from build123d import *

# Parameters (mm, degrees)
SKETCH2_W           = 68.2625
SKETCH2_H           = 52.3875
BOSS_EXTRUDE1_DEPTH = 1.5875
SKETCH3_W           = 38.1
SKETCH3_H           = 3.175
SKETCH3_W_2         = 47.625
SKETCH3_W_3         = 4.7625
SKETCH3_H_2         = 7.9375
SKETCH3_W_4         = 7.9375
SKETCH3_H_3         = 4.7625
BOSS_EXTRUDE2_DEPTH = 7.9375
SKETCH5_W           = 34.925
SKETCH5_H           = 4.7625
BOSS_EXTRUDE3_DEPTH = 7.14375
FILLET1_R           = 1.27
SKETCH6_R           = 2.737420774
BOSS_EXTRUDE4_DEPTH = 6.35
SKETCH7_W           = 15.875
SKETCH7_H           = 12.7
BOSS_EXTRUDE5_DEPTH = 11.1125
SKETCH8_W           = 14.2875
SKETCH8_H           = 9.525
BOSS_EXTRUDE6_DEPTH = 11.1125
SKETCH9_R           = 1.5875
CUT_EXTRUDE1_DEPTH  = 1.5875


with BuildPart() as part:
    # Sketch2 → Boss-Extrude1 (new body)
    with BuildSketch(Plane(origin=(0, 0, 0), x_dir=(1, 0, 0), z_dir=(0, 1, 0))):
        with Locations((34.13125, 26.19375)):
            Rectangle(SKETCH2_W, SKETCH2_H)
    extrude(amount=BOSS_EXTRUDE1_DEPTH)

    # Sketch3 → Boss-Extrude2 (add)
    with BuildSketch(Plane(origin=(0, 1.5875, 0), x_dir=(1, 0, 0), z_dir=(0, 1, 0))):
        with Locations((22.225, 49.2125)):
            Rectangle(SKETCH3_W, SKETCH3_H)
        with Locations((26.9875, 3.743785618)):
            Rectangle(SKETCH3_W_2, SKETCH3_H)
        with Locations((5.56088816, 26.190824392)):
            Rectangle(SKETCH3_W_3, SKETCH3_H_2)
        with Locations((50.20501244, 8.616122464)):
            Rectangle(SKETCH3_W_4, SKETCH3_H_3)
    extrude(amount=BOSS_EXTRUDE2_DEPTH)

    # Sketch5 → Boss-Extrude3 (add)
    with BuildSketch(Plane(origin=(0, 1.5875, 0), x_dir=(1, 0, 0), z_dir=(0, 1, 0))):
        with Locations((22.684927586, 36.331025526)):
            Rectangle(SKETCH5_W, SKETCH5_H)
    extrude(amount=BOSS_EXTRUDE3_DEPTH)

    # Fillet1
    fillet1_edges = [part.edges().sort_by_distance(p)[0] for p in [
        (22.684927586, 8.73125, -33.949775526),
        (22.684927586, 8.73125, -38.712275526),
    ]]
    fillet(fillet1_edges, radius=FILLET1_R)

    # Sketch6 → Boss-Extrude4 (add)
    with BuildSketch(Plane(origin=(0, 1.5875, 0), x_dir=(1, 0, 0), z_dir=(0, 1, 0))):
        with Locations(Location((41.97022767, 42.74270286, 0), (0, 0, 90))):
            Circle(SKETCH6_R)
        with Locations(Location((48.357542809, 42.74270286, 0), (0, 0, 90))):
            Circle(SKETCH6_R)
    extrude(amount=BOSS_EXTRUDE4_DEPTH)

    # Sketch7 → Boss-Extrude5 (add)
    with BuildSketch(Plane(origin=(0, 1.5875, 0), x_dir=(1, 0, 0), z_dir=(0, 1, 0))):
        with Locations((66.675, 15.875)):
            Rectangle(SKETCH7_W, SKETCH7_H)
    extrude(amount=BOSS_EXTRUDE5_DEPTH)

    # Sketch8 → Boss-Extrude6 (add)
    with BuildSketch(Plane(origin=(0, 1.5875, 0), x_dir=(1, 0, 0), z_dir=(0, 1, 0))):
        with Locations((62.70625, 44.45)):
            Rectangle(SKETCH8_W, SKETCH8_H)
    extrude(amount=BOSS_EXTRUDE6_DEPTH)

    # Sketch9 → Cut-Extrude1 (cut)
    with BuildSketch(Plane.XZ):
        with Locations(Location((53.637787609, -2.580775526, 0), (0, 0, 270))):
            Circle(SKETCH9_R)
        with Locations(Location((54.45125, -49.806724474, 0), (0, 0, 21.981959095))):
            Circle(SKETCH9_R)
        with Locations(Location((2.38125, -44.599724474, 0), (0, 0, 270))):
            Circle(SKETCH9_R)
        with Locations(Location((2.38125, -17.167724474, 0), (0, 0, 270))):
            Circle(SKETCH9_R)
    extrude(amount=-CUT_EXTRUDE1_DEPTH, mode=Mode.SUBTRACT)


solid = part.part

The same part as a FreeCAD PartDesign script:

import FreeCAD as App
import Part
import Sketcher

V = App.Vector
Q = App.Units.Quantity


def edges_at(feature, points):
    """Names of the edges that pass closest to the given points."""
    edges = feature.Shape.Edges
    near = lambda p: min(range(len(edges)), key=lambda i: edges[i].distToShape(Part.Vertex(*p))[0])
    return sorted({f"Edge{near(p) + 1}" for p in points})


def add_polygon(sketch, points):
    """Adds a closed chain of lines whose ends are joined by coincident constraints."""
    first, n = sketch.GeometryCount, len(points)
    for a, b in zip(points, points[1:] + points[:1]):
        sketch.addGeometry(Part.LineSegment(App.Vector(*a, 0), App.Vector(*b, 0)), False)
    for i in range(n):
        sketch.addConstraint(Sketcher.Constraint("Coincident", first + i, 2, first + (i + 1) % n, 1))

doc = App.newDocument("Part")
body = doc.addObject("PartDesign::Body", "Body")

# Sketch on XZ plane
sketch1 = doc.addObject("Sketcher::SketchObject", "Sketch")
body.addObject(sketch1)
sketch1.AttachmentSupport = (doc.XZ_Plane, [""])
sketch1.MapMode = "FlatFace"
add_polygon(sketch1, [(0, -52.3875), (0, 0), (68.2625, 0), (68.2625, -52.3875)])  # lines 0-3
sketch1.addConstraint(Sketcher.Constraint("Vertical", 0))
sketch1.addConstraint(Sketcher.Constraint("Horizontal", 1))
sketch1.addConstraint(Sketcher.Constraint("Vertical", 2))
sketch1.addConstraint(Sketcher.Constraint("Horizontal", 3))
sketch1.addConstraint(Sketcher.Constraint("Coincident", 0, 2, -1, 1))
sketch1.addConstraint(Sketcher.Constraint("DistanceX", 1, 1, 1, 2, Q("2.6875 in")))
sketch1.addConstraint(Sketcher.Constraint("DistanceY", 0, 1, 0, 2, Q("2.0625 in")))
pad1 = doc.addObject("PartDesign::Pad", "Pad")
body.addObject(pad1)
pad1.Profile = sketch1
pad1.Length = Q("0.0625 in")
pad1.Reversed = True

# Sketch on XZ plane
sketch2 = doc.addObject("Sketcher::SketchObject", "Sketch001")
body.addObject(sketch2)
sketch2.AttachmentSupport = (doc.XZ_Plane, [""])
sketch2.MapMode = "FlatFace"
sketch2.AttachmentOffset = App.Placement(V(0, 0, -0.0625 * 25.4), App.Rotation())
add_polygon(sketch2, [(3.175, -50.8), (3.175, -47.625), (41.275, -47.625), (41.275, -50.8)])  # lines 0-3
add_polygon(sketch2, [(3.175, -5.331286), (3.175, -2.156286), (50.8, -2.156286), (50.8, -5.331286)])  # lines 4-7
add_polygon(sketch2, [(3.179638, -30.159574), (3.179638, -22.222074), (7.942138, -22.222074), (7.942138, -30.159574)])  # lines 8-11
add_polygon(sketch2, [(46.236262, -10.997372), (46.236262, -6.234872), (54.173762, -6.234872), (54.173762, -10.997372)])  # lines 12-15
sketch2.addConstraint(Sketcher.Constraint("Vertical", 0))
sketch2.addConstraint(Sketcher.Constraint("Horizontal", 1))
sketch2.addConstraint(Sketcher.Constraint("Vertical", 2))
sketch2.addConstraint(Sketcher.Constraint("Horizontal", 3))
sketch2.addConstraint(Sketcher.Constraint("Vertical", 4))
sketch2.addConstraint(Sketcher.Constraint("Horizontal", 5))
sketch2.addConstraint(Sketcher.Constraint("Vertical", 6))
sketch2.addConstraint(Sketcher.Constraint("Horizontal", 7))
sketch2.addConstraint(Sketcher.Constraint("Vertical", 8))
sketch2.addConstraint(Sketcher.Constraint("Horizontal", 9))
sketch2.addConstraint(Sketcher.Constraint("Vertical", 10))
sketch2.addConstraint(Sketcher.Constraint("Horizontal", 11))
sketch2.addConstraint(Sketcher.Constraint("Vertical", 12))
sketch2.addConstraint(Sketcher.Constraint("Horizontal", 13))
sketch2.addConstraint(Sketcher.Constraint("Vertical", 14))
sketch2.addConstraint(Sketcher.Constraint("Horizontal", 15))
sketch2.addConstraint(Sketcher.Constraint("Vertical", 3, 2, 4, 2))
sketch2.addConstraint(Sketcher.Constraint("Equal", 2, 4))
sketch2.addConstraint(Sketcher.Constraint("Equal", 15, 8))
sketch2.addConstraint(Sketcher.Constraint("Equal", 11, 12))
sketch2.addConstraint(Sketcher.Constraint("DistanceX", 1, 1, 1, 2, Q("1.5 in")))
sketch2.addConstraint(Sketcher.Constraint("DistanceY", 2, 2, -1, 1, Q("2 in")))
sketch2.addConstraint(Sketcher.Constraint("DistanceX", -1, 1, 5, 2, Q("2 in")))
sketch2.addConstraint(Sketcher.Constraint("DistanceX", 5, 1, 5, 2, Q("1.875 in")))
sketch2.addConstraint(Sketcher.Constraint("DistanceX", 9, 1, 9, 2, Q("0.1875 in")))
sketch2.addConstraint(Sketcher.Constraint("DistanceX", 13, 1, 13, 2, Q("0.3125 in")))
sketch2.addConstraint(Sketcher.Constraint("DistanceY", 0, 1, 0, 2, Q("0.125 in")))
sketch2.addConstraint(Sketcher.Constraint("DistanceY", 9, 2, 12, 2, Q("15.987202 mm")))
sketch2.addConstraint(Sketcher.Constraint("DistanceX", -1, 1, 8, 2, Q("3.179638 mm")))
sketch2.addConstraint(Sketcher.Constraint("DistanceY", 8, 2, 7, 2, Q("16.890789 mm")))
sketch2.addConstraint(Sketcher.Constraint("DistanceY", 4, 2, -1, 1, Q("2.156286 mm")))
sketch2.addConstraint(Sketcher.Constraint("DistanceX", -1, 1, 12, 2, Q("46.236262 mm")))
pad2 = doc.addObject("PartDesign::Pad", "Pad001")
body.addObject(pad2)
pad2.Profile = sketch2
pad2.Length = Q("0.3125 in")
pad2.Reversed = True

# Sketch on XZ plane
sketch3 = doc.addObject("Sketcher::SketchObject", "Sketch002")
body.addObject(sketch3)
sketch3.AttachmentSupport = (doc.XZ_Plane, [""])
sketch3.MapMode = "FlatFace"
sketch3.AttachmentOffset = App.Placement(V(0, 0, -0.0625 * 25.4), App.Rotation())
add_polygon(sketch3, [(5.222428, -38.712276), (5.222428, -33.949776), (40.147428, -33.949776), (40.147428, -38.712276)])  # lines 0-3
sketch3.addConstraint(Sketcher.Constraint("Vertical", 0))
sketch3.addConstraint(Sketcher.Constraint("Horizontal", 1))
sketch3.addConstraint(Sketcher.Constraint("Vertical", 2))
sketch3.addConstraint(Sketcher.Constraint("Horizontal", 3))
sketch3.addConstraint(Sketcher.Constraint("DistanceX", 1, 1, 1, 2, Q("1.375 in")))
sketch3.addConstraint(Sketcher.Constraint("DistanceY", 0, 1, 0, 2, Q("0.1875 in")))
sketch3.addConstraint(Sketcher.Constraint("DistanceX", -1, 1, 0, 2, Q("5.222428 mm")))
sketch3.addConstraint(Sketcher.Constraint("DistanceY", 0, 2, -1, 1, Q("33.949776 mm")))
pad3 = doc.addObject("PartDesign::Pad", "Pad002")
body.addObject(pad3)
pad3.Profile = sketch3
pad3.Length = Q("0.28125 in")
pad3.Reversed = True
doc.recompute()

fillet = doc.addObject("PartDesign::Fillet", "Fillet")
body.addObject(fillet)
fillet.Base = (pad3, edges_at(pad3, [(22.685, 8.731, -33.95), (22.685, 8.731, -38.712)]))
fillet.Radius = Q("0.05 in")

# Sketch on XZ plane
sketch4 = doc.addObject("Sketcher::SketchObject", "Sketch003")
body.addObject(sketch4)
sketch4.AttachmentSupport = (doc.XZ_Plane, [""])
sketch4.MapMode = "FlatFace"
sketch4.AttachmentOffset = App.Placement(V(0, 0, -0.0625 * 25.4), App.Rotation())
sketch4.addGeometry(Part.Circle(V(41.970228, -42.742703, 0), V(0, 0, 1), 2.737421), False)
sketch4.addGeometry(Part.Circle(V(48.357543, -42.742703, 0), V(0, 0, 1), 2.737421), False)
sketch4.addConstraint(Sketcher.Constraint("Equal", 0, 1))
sketch4.addConstraint(Sketcher.Constraint("Horizontal", 0, 3, 1, 3))
sketch4.addConstraint(Sketcher.Constraint("Diameter", 0, Q("5.474842 mm")))
sketch4.addConstraint(Sketcher.Constraint("DistanceX", -1, 1, 0, 3, Q("41.970228 mm")))
sketch4.addConstraint(Sketcher.Constraint("DistanceY", 0, 3, -1, 1, Q("42.742703 mm")))
sketch4.addConstraint(Sketcher.Constraint("DistanceX", -1, 1, 1, 3, Q("48.357543 mm")))
pad4 = doc.addObject("PartDesign::Pad", "Pad003")
body.addObject(pad4)
pad4.Profile = sketch4
pad4.Length = Q("0.25 in")
pad4.Reversed = True

# Sketch on XZ plane
sketch5 = doc.addObject("Sketcher::SketchObject", "Sketch004")
body.addObject(sketch5)
sketch5.AttachmentSupport = (doc.XZ_Plane, [""])
sketch5.MapMode = "FlatFace"
sketch5.AttachmentOffset = App.Placement(V(0, 0, -0.0625 * 25.4), App.Rotation())
add_polygon(sketch5, [(58.7375, -22.225), (58.7375, -9.525), (74.6125, -9.525), (74.6125, -22.225)])  # lines 0-3
sketch5.addConstraint(Sketcher.Constraint("Vertical", 0))
sketch5.addConstraint(Sketcher.Constraint("Horizontal", 1))
sketch5.addConstraint(Sketcher.Constraint("Vertical", 2))
sketch5.addConstraint(Sketcher.Constraint("Horizontal", 3))
sketch5.addConstraint(Sketcher.Constraint("DistanceY", 0, 1, 0, 2, Q("0.5 in")))
sketch5.addConstraint(Sketcher.Constraint("DistanceX", 1, 1, 1, 2, Q("0.625 in")))
sketch5.addConstraint(Sketcher.Constraint("DistanceX", -1, 1, 0, 2, Q("2.3125 in")))
sketch5.addConstraint(Sketcher.Constraint("DistanceY", 0, 2, -1, 1, Q("0.375 in")))
pad5 = doc.addObject("PartDesign::Pad", "Pad004")
body.addObject(pad5)
pad5.Profile = sketch5
pad5.Length = Q("0.4375 in")
pad5.Reversed = True

# Sketch on XZ plane
sketch6 = doc.addObject("Sketcher::SketchObject", "Sketch005")
body.addObject(sketch6)
sketch6.AttachmentSupport = (doc.XZ_Plane, [""])
sketch6.MapMode = "FlatFace"
sketch6.AttachmentOffset = App.Placement(V(0, 0, -0.0625 * 25.4), App.Rotation())
add_polygon(sketch6, [(55.5625, -49.2125), (55.5625, -39.6875), (69.85, -39.6875), (69.85, -49.2125)])  # lines 0-3
sketch6.addConstraint(Sketcher.Constraint("Vertical", 0))
sketch6.addConstraint(Sketcher.Constraint("Horizontal", 1))
sketch6.addConstraint(Sketcher.Constraint("Vertical", 2))
sketch6.addConstraint(Sketcher.Constraint("Horizontal", 3))
sketch6.addConstraint(Sketcher.Constraint("DistanceX", 1, 1, 1, 2, Q("0.5625 in")))
sketch6.addConstraint(Sketcher.Constraint("DistanceY", 0, 1, 0, 2, Q("0.375 in")))
sketch6.addConstraint(Sketcher.Constraint("DistanceX", -1, 1, 1, 2, Q("2.75 in")))
sketch6.addConstraint(Sketcher.Constraint("DistanceY", 0, 2, -1, 1, Q("1.5625 in")))
pad6 = doc.addObject("PartDesign::Pad", "Pad005")
body.addObject(pad6)
pad6.Profile = sketch6
pad6.Length = Q("0.4375 in")
pad6.Reversed = True

# Sketch on XZ plane
sketch7 = doc.addObject("Sketcher::SketchObject", "Sketch006")
body.addObject(sketch7)
sketch7.AttachmentSupport = (doc.XZ_Plane, [""])
sketch7.MapMode = "FlatFace"
sketch7.addGeometry(Part.Circle(V(53.637788, -2.580776, 0), V(0, 0, 1), 1.5875), False)
sketch7.addGeometry(Part.Circle(V(54.45125, -49.806724, 0), V(0, 0, 1), 1.5875), False)
sketch7.addGeometry(Part.Circle(V(2.38125, -44.599724, 0), V(0, 0, 1), 1.5875), False)
sketch7.addGeometry(Part.Circle(V(2.38125, -17.167724, 0), V(0, 0, 1), 1.5875), False)
sketch7.addConstraint(Sketcher.Constraint("Equal", 0, 1))
sketch7.addConstraint(Sketcher.Constraint("Equal", 1, 2))
sketch7.addConstraint(Sketcher.Constraint("Equal", 2, 3))
sketch7.addConstraint(Sketcher.Constraint("Vertical", 2, 3, 3, 3))
sketch7.addConstraint(Sketcher.Constraint("Diameter", 0, Q("0.125 in")))
sketch7.addConstraint(Sketcher.Constraint("DistanceX", 2, 3, 1, 3, Q("2.05 in")))
sketch7.addConstraint(Sketcher.Constraint("DistanceY", 2, 3, 3, 3, Q("1.08 in")))
sketch7.addConstraint(Sketcher.Constraint("DistanceX", -1, 1, 2, 3, Q("0.09375 in")))
sketch7.addConstraint(Sketcher.Constraint("DistanceY", 1, 3, 2, 3, Q("0.205 in")))
sketch7.addConstraint(Sketcher.Constraint("DistanceY", 1, 3, 0, 3, Q("47.225949 mm")))
sketch7.addConstraint(Sketcher.Constraint("DistanceX", -1, 1, 0, 3, Q("53.637788 mm")))
sketch7.addConstraint(Sketcher.Constraint("DistanceY", 0, 3, -1, 1, Q("2.580776 mm")))
pocket1 = doc.addObject("PartDesign::Pocket", "Pocket")
body.addObject(pocket1)
pocket1.Profile = sketch7
pocket1.Length = Q("0.0625 in")

doc.recompute()
